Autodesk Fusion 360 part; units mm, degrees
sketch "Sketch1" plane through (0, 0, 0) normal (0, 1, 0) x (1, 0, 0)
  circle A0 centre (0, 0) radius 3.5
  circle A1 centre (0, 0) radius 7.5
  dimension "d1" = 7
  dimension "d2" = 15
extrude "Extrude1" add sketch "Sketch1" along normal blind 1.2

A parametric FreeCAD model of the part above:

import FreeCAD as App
import Part
import Sketcher
from FreeCAD import Vector

doc = App.newDocument("Part")
body = doc.addObject("PartDesign::Body", "Body")

sketch1 = doc.addObject("Sketcher::SketchObject", "Sketch")
body.addObject(sketch1)
sketch1.AttachmentSupport = (doc.XZ_Plane, [""])
sketch1.MapMode = "FlatFace"
sketch1.addGeometry([
    Part.Circle(Vector(0, 0, 0), Vector(0, 0, 1), 7.5),
    Part.Circle(Vector(0, 0, 0), Vector(0, 0, 1), 3.5),
], False)
sketch1.addConstraint([
    Sketcher.Constraint("Coincident", 0, 3, -1, 1),
    Sketcher.Constraint("Coincident", 1, 3, -1, 1),
    Sketcher.Constraint("Diameter", 0, 15.0),
    Sketcher.Constraint("Diameter", 1, 7.0),
])
pad1 = doc.addObject("PartDesign::Pad", "Pad")
body.addObject(pad1)
pad1.Profile = sketch1
pad1.Length = 1.2
pad1.Reversed = True

doc.recompute()
